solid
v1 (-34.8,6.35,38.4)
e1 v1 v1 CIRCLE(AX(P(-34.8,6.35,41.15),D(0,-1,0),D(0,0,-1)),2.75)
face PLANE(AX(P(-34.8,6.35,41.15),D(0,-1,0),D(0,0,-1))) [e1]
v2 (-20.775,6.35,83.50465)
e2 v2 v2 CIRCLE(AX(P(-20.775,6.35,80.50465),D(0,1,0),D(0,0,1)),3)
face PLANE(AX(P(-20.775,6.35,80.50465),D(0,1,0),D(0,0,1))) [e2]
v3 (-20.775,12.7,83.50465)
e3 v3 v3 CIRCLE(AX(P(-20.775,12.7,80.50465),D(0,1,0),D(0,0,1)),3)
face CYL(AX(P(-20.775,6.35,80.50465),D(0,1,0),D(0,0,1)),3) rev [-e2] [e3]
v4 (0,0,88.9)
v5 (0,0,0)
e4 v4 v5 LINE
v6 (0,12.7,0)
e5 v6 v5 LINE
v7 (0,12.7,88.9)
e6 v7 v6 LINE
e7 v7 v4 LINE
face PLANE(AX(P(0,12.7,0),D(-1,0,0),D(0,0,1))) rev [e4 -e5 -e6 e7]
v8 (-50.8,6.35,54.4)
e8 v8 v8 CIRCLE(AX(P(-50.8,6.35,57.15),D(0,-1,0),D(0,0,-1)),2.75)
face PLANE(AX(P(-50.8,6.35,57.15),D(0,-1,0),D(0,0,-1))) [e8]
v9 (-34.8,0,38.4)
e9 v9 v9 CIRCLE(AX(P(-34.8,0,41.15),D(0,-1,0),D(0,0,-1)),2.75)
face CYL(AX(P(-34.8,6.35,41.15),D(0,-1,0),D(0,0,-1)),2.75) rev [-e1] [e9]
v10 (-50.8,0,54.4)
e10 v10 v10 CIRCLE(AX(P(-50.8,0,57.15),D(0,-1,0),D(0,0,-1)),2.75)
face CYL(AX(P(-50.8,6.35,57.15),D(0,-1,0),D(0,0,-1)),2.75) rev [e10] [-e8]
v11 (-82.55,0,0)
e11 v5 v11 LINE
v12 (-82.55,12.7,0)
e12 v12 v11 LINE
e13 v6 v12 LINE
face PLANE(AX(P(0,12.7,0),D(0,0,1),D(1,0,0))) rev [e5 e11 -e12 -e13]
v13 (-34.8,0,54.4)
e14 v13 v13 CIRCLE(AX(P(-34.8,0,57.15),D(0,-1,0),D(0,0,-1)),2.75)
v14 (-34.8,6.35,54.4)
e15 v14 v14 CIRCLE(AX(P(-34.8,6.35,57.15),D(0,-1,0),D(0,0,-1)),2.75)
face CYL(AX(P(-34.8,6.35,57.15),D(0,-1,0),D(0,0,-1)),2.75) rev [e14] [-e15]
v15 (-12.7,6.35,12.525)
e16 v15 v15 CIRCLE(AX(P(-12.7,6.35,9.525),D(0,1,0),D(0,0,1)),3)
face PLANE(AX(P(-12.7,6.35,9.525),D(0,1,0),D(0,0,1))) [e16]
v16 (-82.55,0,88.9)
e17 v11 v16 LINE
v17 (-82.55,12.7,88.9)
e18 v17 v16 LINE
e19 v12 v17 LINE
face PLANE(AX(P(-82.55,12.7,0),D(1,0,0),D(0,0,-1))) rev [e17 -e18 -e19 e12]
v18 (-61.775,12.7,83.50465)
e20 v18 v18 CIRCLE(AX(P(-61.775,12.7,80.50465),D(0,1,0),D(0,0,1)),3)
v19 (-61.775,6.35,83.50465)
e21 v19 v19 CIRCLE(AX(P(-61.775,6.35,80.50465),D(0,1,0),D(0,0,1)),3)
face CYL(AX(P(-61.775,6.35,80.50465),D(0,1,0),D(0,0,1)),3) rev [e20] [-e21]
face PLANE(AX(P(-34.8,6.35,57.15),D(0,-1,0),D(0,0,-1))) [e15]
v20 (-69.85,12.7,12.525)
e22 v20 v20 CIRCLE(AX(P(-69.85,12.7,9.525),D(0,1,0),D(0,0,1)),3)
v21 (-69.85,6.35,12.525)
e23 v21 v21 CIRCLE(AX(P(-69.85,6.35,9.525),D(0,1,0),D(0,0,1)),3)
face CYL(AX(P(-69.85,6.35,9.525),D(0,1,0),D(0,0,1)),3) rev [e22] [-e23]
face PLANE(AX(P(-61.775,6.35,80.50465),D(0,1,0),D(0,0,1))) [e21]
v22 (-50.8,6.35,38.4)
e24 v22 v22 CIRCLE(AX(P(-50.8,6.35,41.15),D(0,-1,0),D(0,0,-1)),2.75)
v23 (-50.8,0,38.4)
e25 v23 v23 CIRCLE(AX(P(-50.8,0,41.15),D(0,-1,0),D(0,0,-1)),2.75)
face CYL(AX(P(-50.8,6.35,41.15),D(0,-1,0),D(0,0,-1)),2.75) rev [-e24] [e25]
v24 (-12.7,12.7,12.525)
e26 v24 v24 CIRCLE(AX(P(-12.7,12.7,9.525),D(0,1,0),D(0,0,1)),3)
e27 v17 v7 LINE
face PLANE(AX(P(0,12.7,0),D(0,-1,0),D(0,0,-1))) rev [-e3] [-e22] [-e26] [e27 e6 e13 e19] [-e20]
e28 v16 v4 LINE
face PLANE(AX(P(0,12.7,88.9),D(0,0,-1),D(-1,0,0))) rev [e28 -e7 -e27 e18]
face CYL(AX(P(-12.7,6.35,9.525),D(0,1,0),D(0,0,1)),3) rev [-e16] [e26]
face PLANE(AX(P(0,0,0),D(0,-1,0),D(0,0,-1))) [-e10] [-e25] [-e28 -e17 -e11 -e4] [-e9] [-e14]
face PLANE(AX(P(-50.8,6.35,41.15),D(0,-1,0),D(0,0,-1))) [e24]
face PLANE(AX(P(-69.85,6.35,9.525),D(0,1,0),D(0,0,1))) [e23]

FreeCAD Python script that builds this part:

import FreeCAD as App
import Part
import Sketcher
Q = App.Units.Quantity

doc = App.newDocument("Part")
body = doc.addObject("PartDesign::Body", "Body")

# Sketch on XZ plane
sketch1 = body.newObject("Sketcher::SketchObject", "Sketch")
sketch1.AttachmentSupport = (doc.getObject("XZ_Plane"), [""])
sketch1.MapMode = "FlatFace"
sketch1.addGeometry(Part.LineSegment(App.Vector(-83, 0, 0), App.Vector(-83, 89, 0)), False)
sketch1.addGeometry(Part.LineSegment(App.Vector(-83, 89, 0), App.Vector(0, 89, 0)), False)
sketch1.addGeometry(Part.LineSegment(App.Vector(0, 89, 0), App.Vector(0, 0, 0)), False)
sketch1.addGeometry(Part.LineSegment(App.Vector(0, 0, 0), App.Vector(-83, 0, 0)), False)
sketch1.addConstraint(Sketcher.Constraint("Coincident", 0, 2, 1, 1))
sketch1.addConstraint(Sketcher.Constraint("Coincident", 1, 2, 2, 1))
sketch1.addConstraint(Sketcher.Constraint("Coincident", 2, 2, 3, 1))
sketch1.addConstraint(Sketcher.Constraint("Coincident", 3, 2, 0, 1))
sketch1.addConstraint(Sketcher.Constraint("Vertical", 0))
sketch1.addConstraint(Sketcher.Constraint("Horizontal", 1))
sketch1.addConstraint(Sketcher.Constraint("Vertical", 2))
sketch1.addConstraint(Sketcher.Constraint("Horizontal", 3))
sketch1.addConstraint(Sketcher.Constraint("Coincident", 2, 2, -1, 1))
sketch1.addConstraint(Sketcher.Constraint("DistanceY", 0, 1, 0, 2, Q("3.5 in")))
sketch1.addConstraint(Sketcher.Constraint("DistanceX", 1, 1, 1, 2, Q("3.25 in")))
pad1 = body.newObject("PartDesign::Pad", "Pad")
pad1.Profile = sketch1
pad1.Length = Q("0.5 in")
pad1.Reversed = True

# Sketch on XZ plane
sketch2 = body.newObject("Sketcher::SketchObject", "Sketch001")
sketch2.AttachmentSupport = (doc.getObject("XZ_Plane"), [""])
sketch2.MapMode = "FlatFace"
sketch2.AttachmentOffset = App.Placement(App.Vector(0, 0, -0.5 * 25.4), App.Rotation())
sketch2.addGeometry(Part.Circle(App.Vector(-69.8, 9.5, 0), App.Vector(0, 0, 1), 3), False)
sketch2.addGeometry(Part.Circle(App.Vector(-12.7, 9.5, 0), App.Vector(0, 0, 1), 3), False)
sketch2.addGeometry(Part.Circle(App.Vector(-61.8, 80.5, 0), App.Vector(0, 0, 1), 3), False)
sketch2.addGeometry(Part.Circle(App.Vector(-20.8, 80.5, 0), App.Vector(0, 0, 1), 3), False)
sketch2.addConstraint(Sketcher.Constraint("Equal", 0, 1))
sketch2.addConstraint(Sketcher.Constraint("Equal", 1, 2))
sketch2.addConstraint(Sketcher.Constraint("Equal", 2, 3))
sketch2.addConstraint(Sketcher.Constraint("Horizontal", 0, 3, 1, 3))
sketch2.addConstraint(Sketcher.Constraint("Horizontal", 2, 3, 3, 3))
sketch2.addConstraint(Sketcher.Constraint("DistanceX", 1, 3, -1, 1, Q("0.5 in")))
sketch2.addConstraint(Sketcher.Constraint("Diameter", 0, 6.0))
sketch2.addConstraint(Sketcher.Constraint("DistanceX", 0, 3, -1, 1, Q("2.75 in")))
sketch2.addConstraint(Sketcher.Constraint("DistanceY", -1, 1, 0, 3, Q("0.375 in")))
sketch2.addConstraint(Sketcher.Constraint("DistanceX", 2, 3, -1, 1, 61.775))
sketch2.addConstraint(Sketcher.Constraint("DistanceX", 3, 3, -1, 1, 20.775))
sketch2.addConstraint(Sketcher.Constraint("DistanceY", -1, 1, 2, 3, 80.50465))
pocket1 = body.newObject("PartDesign::Pocket", "Pocket")
pocket1.Profile = sketch2
pocket1.Length = Q("0.25 in")
pocket1.Reversed = True

# Sketch on XZ plane
sketch3 = body.newObject("Sketcher::SketchObject", "Sketch002")
sketch3.AttachmentSupport = (doc.getObject("XZ_Plane"), [""])
sketch3.MapMode = "FlatFace"
sketch3.addGeometry(Part.Circle(App.Vector(-50.8, 57.1, 0), App.Vector(0, 0, 1), 2.8), False)
sketch3.addGeometry(Part.Circle(App.Vector(-34.8, 57.1, 0), App.Vector(0, 0, 1), 2.8), False)
sketch3.addGeometry(Part.Circle(App.Vector(-50.8, 41.1, 0), App.Vector(0, 0, 1), 2.8), False)
sketch3.addGeometry(Part.Circle(App.Vector(-34.8, 41.1, 0), App.Vector(0, 0, 1), 2.8), False)
sketch3.addConstraint(Sketcher.Constraint("Equal", 0, 1))
sketch3.addConstraint(Sketcher.Constraint("Equal", 1, 2))
sketch3.addConstraint(Sketcher.Constraint("Equal", 2, 3))
sketch3.addConstraint(Sketcher.Constraint("Horizontal", 0, 3, 1, 3))
sketch3.addConstraint(Sketcher.Constraint("Horizontal", 2, 3, 3, 3))
sketch3.addConstraint(Sketcher.Constraint("Vertical", 0, 3, 2, 3))
sketch3.addConstraint(Sketcher.Constraint("Vertical", 1, 3, 3, 3))
sketch3.addConstraint(Sketcher.Constraint("DistanceX", 0, 3, -1, 1, Q("2 in")))
sketch3.addConstraint(Sketcher.Constraint("Diameter", 0, 5.5))
sketch3.addConstraint(Sketcher.Constraint("DistanceY", -1, 1, 0, 3, Q("2.25 in")))
sketch3.addConstraint(Sketcher.Constraint("DistanceX", 1, 3, -1, 1, 34.8))
sketch3.addConstraint(Sketcher.Constraint("DistanceY", -1, 1, 2, 3, 41.15))
pocket2 = body.newObject("PartDesign::Pocket", "Pocket001")
pocket2.Profile = sketch3
pocket2.Length = Q("0.25 in")

doc.recompute()
